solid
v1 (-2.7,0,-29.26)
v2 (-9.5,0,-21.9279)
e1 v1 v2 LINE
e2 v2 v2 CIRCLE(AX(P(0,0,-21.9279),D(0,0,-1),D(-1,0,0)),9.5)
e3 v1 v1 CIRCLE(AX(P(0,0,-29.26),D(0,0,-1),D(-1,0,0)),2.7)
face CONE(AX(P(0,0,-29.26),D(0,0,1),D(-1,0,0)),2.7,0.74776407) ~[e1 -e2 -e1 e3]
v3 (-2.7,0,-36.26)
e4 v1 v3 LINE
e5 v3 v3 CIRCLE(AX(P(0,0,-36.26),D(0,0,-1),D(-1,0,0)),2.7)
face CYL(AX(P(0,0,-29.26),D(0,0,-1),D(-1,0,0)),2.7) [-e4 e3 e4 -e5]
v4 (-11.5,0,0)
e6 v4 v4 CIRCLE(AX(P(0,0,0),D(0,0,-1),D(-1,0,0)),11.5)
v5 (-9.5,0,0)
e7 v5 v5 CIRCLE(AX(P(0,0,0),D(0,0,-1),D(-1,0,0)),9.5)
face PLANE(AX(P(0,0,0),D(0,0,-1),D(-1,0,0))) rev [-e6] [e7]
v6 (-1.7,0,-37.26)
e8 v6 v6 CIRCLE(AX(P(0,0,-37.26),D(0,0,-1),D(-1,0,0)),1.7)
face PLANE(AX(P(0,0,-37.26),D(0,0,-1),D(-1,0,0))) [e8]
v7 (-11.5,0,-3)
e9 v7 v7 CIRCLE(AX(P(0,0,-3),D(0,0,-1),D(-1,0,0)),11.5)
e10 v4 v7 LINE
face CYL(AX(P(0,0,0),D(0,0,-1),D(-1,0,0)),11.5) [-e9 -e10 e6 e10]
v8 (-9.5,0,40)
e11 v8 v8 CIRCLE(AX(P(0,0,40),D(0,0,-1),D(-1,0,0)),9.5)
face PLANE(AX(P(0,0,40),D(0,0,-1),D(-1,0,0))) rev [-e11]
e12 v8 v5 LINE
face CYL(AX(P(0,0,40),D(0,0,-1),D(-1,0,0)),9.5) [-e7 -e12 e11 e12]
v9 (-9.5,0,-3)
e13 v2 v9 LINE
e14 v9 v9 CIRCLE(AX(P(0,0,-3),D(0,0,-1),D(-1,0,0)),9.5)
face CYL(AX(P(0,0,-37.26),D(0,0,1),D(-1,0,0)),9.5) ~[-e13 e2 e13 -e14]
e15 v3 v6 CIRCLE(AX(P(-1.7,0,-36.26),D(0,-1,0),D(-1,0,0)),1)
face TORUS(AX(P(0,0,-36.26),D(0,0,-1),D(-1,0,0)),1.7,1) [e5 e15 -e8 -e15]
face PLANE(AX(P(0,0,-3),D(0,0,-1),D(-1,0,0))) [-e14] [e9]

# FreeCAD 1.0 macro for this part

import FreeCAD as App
import Part
import Sketcher
from FreeCAD import Vector


def edges_at(feature, points):
    """Names of the edges that pass closest to the given points."""
    edges = feature.Shape.Edges
    near = lambda p: min(range(len(edges)), key=lambda i: edges[i].distToShape(Part.Vertex(*p))[0])
    return sorted({f"Edge{near(p) + 1}" for p in points})


def add_polygon(sketch, points):
    """Adds a closed chain of lines whose ends are joined by coincident constraints."""
    first, n = sketch.GeometryCount, len(points)
    for a, b in zip(points, points[1:] + points[:1]):
        sketch.addGeometry(Part.LineSegment(App.Vector(*a, 0), App.Vector(*b, 0)), False)
    for i in range(n):
        sketch.addConstraint(Sketcher.Constraint("Coincident", first + i, 2, first + (i + 1) % n, 1))

doc = App.newDocument("Part")
body = doc.addObject("PartDesign::Body", "Body")

# Sketch on XZ plane
sketch1 = body.newObject("Sketcher::SketchObject", "Sketch")
sketch1.AttachmentSupport = (doc.getObject("XZ_Plane"), [""])
sketch1.MapMode = "FlatFace"
add_polygon(sketch1, [(-2.7, -29.3), (-9.5, -21.9), (-9.5, -3), (-11.5, -3), (-11.5, 0), (-9.5, 0), (-9.5, 40), (0, 40), (0, -37.3), (-2.7, -37.3)])  # lines 0-9
sketch1.addConstraint(Sketcher.Constraint("Vertical", 1))
sketch1.addConstraint(Sketcher.Constraint("Horizontal", 2))
sketch1.addConstraint(Sketcher.Constraint("Vertical", 3))
sketch1.addConstraint(Sketcher.Constraint("Horizontal", 4))
sketch1.addConstraint(Sketcher.Constraint("Vertical", 5))
sketch1.addConstraint(Sketcher.Constraint("Horizontal", 6))
sketch1.addConstraint(Sketcher.Constraint("Vertical", 7))
sketch1.addConstraint(Sketcher.Constraint("Horizontal", 8))
sketch1.addConstraint(Sketcher.Constraint("Vertical", 9))
sketch1.addConstraint(Sketcher.Constraint("PointOnObject", 3, 2, -1))
sketch1.addConstraint(Sketcher.Constraint("PointOnObject", 6, 2, -2))
sketch1.addConstraint(Sketcher.Constraint("Vertical", 1, 2, 4, 2))
sketch1.addConstraint(Sketcher.Constraint("DistanceX", 2, 2, 2, 1, 2.0))
sketch1.addConstraint(Sketcher.Constraint("DistanceY", 3, 1, 3, 2, 3.0))
sketch1.addConstraint(Sketcher.Constraint("DistanceY", 5, 1, 5, 2, 40.0))
sketch1.addConstraint(Sketcher.Constraint("DistanceY", 9, 1, 9, 2, 8.0))
sketch1.addConstraint(Sketcher.Constraint("Distance", 0, 10.0))
sketch1.addConstraint(Sketcher.Constraint("DistanceX", 6, 1, 6, 2, 9.5))
sketch1.addConstraint(Sketcher.Constraint("DistanceX", 8, 2, 8, 1, 2.7))
sketch1.addConstraint(Sketcher.Constraint("DistanceY", 7, 2, -1, 1, 37.26))
revolution = body.newObject("PartDesign::Revolution", "Revolution")
revolution.Profile = sketch1
revolution.ReferenceAxis = (sketch1, ["V_Axis"])
revolution.Angle = 360
doc.recompute()

fillet = body.newObject("PartDesign::Fillet", "Fillet")
fillet.Base = (revolution, edges_at(revolution, [(2.7, 0, -37.26)]))
fillet.Radius = 1

doc.recompute()
